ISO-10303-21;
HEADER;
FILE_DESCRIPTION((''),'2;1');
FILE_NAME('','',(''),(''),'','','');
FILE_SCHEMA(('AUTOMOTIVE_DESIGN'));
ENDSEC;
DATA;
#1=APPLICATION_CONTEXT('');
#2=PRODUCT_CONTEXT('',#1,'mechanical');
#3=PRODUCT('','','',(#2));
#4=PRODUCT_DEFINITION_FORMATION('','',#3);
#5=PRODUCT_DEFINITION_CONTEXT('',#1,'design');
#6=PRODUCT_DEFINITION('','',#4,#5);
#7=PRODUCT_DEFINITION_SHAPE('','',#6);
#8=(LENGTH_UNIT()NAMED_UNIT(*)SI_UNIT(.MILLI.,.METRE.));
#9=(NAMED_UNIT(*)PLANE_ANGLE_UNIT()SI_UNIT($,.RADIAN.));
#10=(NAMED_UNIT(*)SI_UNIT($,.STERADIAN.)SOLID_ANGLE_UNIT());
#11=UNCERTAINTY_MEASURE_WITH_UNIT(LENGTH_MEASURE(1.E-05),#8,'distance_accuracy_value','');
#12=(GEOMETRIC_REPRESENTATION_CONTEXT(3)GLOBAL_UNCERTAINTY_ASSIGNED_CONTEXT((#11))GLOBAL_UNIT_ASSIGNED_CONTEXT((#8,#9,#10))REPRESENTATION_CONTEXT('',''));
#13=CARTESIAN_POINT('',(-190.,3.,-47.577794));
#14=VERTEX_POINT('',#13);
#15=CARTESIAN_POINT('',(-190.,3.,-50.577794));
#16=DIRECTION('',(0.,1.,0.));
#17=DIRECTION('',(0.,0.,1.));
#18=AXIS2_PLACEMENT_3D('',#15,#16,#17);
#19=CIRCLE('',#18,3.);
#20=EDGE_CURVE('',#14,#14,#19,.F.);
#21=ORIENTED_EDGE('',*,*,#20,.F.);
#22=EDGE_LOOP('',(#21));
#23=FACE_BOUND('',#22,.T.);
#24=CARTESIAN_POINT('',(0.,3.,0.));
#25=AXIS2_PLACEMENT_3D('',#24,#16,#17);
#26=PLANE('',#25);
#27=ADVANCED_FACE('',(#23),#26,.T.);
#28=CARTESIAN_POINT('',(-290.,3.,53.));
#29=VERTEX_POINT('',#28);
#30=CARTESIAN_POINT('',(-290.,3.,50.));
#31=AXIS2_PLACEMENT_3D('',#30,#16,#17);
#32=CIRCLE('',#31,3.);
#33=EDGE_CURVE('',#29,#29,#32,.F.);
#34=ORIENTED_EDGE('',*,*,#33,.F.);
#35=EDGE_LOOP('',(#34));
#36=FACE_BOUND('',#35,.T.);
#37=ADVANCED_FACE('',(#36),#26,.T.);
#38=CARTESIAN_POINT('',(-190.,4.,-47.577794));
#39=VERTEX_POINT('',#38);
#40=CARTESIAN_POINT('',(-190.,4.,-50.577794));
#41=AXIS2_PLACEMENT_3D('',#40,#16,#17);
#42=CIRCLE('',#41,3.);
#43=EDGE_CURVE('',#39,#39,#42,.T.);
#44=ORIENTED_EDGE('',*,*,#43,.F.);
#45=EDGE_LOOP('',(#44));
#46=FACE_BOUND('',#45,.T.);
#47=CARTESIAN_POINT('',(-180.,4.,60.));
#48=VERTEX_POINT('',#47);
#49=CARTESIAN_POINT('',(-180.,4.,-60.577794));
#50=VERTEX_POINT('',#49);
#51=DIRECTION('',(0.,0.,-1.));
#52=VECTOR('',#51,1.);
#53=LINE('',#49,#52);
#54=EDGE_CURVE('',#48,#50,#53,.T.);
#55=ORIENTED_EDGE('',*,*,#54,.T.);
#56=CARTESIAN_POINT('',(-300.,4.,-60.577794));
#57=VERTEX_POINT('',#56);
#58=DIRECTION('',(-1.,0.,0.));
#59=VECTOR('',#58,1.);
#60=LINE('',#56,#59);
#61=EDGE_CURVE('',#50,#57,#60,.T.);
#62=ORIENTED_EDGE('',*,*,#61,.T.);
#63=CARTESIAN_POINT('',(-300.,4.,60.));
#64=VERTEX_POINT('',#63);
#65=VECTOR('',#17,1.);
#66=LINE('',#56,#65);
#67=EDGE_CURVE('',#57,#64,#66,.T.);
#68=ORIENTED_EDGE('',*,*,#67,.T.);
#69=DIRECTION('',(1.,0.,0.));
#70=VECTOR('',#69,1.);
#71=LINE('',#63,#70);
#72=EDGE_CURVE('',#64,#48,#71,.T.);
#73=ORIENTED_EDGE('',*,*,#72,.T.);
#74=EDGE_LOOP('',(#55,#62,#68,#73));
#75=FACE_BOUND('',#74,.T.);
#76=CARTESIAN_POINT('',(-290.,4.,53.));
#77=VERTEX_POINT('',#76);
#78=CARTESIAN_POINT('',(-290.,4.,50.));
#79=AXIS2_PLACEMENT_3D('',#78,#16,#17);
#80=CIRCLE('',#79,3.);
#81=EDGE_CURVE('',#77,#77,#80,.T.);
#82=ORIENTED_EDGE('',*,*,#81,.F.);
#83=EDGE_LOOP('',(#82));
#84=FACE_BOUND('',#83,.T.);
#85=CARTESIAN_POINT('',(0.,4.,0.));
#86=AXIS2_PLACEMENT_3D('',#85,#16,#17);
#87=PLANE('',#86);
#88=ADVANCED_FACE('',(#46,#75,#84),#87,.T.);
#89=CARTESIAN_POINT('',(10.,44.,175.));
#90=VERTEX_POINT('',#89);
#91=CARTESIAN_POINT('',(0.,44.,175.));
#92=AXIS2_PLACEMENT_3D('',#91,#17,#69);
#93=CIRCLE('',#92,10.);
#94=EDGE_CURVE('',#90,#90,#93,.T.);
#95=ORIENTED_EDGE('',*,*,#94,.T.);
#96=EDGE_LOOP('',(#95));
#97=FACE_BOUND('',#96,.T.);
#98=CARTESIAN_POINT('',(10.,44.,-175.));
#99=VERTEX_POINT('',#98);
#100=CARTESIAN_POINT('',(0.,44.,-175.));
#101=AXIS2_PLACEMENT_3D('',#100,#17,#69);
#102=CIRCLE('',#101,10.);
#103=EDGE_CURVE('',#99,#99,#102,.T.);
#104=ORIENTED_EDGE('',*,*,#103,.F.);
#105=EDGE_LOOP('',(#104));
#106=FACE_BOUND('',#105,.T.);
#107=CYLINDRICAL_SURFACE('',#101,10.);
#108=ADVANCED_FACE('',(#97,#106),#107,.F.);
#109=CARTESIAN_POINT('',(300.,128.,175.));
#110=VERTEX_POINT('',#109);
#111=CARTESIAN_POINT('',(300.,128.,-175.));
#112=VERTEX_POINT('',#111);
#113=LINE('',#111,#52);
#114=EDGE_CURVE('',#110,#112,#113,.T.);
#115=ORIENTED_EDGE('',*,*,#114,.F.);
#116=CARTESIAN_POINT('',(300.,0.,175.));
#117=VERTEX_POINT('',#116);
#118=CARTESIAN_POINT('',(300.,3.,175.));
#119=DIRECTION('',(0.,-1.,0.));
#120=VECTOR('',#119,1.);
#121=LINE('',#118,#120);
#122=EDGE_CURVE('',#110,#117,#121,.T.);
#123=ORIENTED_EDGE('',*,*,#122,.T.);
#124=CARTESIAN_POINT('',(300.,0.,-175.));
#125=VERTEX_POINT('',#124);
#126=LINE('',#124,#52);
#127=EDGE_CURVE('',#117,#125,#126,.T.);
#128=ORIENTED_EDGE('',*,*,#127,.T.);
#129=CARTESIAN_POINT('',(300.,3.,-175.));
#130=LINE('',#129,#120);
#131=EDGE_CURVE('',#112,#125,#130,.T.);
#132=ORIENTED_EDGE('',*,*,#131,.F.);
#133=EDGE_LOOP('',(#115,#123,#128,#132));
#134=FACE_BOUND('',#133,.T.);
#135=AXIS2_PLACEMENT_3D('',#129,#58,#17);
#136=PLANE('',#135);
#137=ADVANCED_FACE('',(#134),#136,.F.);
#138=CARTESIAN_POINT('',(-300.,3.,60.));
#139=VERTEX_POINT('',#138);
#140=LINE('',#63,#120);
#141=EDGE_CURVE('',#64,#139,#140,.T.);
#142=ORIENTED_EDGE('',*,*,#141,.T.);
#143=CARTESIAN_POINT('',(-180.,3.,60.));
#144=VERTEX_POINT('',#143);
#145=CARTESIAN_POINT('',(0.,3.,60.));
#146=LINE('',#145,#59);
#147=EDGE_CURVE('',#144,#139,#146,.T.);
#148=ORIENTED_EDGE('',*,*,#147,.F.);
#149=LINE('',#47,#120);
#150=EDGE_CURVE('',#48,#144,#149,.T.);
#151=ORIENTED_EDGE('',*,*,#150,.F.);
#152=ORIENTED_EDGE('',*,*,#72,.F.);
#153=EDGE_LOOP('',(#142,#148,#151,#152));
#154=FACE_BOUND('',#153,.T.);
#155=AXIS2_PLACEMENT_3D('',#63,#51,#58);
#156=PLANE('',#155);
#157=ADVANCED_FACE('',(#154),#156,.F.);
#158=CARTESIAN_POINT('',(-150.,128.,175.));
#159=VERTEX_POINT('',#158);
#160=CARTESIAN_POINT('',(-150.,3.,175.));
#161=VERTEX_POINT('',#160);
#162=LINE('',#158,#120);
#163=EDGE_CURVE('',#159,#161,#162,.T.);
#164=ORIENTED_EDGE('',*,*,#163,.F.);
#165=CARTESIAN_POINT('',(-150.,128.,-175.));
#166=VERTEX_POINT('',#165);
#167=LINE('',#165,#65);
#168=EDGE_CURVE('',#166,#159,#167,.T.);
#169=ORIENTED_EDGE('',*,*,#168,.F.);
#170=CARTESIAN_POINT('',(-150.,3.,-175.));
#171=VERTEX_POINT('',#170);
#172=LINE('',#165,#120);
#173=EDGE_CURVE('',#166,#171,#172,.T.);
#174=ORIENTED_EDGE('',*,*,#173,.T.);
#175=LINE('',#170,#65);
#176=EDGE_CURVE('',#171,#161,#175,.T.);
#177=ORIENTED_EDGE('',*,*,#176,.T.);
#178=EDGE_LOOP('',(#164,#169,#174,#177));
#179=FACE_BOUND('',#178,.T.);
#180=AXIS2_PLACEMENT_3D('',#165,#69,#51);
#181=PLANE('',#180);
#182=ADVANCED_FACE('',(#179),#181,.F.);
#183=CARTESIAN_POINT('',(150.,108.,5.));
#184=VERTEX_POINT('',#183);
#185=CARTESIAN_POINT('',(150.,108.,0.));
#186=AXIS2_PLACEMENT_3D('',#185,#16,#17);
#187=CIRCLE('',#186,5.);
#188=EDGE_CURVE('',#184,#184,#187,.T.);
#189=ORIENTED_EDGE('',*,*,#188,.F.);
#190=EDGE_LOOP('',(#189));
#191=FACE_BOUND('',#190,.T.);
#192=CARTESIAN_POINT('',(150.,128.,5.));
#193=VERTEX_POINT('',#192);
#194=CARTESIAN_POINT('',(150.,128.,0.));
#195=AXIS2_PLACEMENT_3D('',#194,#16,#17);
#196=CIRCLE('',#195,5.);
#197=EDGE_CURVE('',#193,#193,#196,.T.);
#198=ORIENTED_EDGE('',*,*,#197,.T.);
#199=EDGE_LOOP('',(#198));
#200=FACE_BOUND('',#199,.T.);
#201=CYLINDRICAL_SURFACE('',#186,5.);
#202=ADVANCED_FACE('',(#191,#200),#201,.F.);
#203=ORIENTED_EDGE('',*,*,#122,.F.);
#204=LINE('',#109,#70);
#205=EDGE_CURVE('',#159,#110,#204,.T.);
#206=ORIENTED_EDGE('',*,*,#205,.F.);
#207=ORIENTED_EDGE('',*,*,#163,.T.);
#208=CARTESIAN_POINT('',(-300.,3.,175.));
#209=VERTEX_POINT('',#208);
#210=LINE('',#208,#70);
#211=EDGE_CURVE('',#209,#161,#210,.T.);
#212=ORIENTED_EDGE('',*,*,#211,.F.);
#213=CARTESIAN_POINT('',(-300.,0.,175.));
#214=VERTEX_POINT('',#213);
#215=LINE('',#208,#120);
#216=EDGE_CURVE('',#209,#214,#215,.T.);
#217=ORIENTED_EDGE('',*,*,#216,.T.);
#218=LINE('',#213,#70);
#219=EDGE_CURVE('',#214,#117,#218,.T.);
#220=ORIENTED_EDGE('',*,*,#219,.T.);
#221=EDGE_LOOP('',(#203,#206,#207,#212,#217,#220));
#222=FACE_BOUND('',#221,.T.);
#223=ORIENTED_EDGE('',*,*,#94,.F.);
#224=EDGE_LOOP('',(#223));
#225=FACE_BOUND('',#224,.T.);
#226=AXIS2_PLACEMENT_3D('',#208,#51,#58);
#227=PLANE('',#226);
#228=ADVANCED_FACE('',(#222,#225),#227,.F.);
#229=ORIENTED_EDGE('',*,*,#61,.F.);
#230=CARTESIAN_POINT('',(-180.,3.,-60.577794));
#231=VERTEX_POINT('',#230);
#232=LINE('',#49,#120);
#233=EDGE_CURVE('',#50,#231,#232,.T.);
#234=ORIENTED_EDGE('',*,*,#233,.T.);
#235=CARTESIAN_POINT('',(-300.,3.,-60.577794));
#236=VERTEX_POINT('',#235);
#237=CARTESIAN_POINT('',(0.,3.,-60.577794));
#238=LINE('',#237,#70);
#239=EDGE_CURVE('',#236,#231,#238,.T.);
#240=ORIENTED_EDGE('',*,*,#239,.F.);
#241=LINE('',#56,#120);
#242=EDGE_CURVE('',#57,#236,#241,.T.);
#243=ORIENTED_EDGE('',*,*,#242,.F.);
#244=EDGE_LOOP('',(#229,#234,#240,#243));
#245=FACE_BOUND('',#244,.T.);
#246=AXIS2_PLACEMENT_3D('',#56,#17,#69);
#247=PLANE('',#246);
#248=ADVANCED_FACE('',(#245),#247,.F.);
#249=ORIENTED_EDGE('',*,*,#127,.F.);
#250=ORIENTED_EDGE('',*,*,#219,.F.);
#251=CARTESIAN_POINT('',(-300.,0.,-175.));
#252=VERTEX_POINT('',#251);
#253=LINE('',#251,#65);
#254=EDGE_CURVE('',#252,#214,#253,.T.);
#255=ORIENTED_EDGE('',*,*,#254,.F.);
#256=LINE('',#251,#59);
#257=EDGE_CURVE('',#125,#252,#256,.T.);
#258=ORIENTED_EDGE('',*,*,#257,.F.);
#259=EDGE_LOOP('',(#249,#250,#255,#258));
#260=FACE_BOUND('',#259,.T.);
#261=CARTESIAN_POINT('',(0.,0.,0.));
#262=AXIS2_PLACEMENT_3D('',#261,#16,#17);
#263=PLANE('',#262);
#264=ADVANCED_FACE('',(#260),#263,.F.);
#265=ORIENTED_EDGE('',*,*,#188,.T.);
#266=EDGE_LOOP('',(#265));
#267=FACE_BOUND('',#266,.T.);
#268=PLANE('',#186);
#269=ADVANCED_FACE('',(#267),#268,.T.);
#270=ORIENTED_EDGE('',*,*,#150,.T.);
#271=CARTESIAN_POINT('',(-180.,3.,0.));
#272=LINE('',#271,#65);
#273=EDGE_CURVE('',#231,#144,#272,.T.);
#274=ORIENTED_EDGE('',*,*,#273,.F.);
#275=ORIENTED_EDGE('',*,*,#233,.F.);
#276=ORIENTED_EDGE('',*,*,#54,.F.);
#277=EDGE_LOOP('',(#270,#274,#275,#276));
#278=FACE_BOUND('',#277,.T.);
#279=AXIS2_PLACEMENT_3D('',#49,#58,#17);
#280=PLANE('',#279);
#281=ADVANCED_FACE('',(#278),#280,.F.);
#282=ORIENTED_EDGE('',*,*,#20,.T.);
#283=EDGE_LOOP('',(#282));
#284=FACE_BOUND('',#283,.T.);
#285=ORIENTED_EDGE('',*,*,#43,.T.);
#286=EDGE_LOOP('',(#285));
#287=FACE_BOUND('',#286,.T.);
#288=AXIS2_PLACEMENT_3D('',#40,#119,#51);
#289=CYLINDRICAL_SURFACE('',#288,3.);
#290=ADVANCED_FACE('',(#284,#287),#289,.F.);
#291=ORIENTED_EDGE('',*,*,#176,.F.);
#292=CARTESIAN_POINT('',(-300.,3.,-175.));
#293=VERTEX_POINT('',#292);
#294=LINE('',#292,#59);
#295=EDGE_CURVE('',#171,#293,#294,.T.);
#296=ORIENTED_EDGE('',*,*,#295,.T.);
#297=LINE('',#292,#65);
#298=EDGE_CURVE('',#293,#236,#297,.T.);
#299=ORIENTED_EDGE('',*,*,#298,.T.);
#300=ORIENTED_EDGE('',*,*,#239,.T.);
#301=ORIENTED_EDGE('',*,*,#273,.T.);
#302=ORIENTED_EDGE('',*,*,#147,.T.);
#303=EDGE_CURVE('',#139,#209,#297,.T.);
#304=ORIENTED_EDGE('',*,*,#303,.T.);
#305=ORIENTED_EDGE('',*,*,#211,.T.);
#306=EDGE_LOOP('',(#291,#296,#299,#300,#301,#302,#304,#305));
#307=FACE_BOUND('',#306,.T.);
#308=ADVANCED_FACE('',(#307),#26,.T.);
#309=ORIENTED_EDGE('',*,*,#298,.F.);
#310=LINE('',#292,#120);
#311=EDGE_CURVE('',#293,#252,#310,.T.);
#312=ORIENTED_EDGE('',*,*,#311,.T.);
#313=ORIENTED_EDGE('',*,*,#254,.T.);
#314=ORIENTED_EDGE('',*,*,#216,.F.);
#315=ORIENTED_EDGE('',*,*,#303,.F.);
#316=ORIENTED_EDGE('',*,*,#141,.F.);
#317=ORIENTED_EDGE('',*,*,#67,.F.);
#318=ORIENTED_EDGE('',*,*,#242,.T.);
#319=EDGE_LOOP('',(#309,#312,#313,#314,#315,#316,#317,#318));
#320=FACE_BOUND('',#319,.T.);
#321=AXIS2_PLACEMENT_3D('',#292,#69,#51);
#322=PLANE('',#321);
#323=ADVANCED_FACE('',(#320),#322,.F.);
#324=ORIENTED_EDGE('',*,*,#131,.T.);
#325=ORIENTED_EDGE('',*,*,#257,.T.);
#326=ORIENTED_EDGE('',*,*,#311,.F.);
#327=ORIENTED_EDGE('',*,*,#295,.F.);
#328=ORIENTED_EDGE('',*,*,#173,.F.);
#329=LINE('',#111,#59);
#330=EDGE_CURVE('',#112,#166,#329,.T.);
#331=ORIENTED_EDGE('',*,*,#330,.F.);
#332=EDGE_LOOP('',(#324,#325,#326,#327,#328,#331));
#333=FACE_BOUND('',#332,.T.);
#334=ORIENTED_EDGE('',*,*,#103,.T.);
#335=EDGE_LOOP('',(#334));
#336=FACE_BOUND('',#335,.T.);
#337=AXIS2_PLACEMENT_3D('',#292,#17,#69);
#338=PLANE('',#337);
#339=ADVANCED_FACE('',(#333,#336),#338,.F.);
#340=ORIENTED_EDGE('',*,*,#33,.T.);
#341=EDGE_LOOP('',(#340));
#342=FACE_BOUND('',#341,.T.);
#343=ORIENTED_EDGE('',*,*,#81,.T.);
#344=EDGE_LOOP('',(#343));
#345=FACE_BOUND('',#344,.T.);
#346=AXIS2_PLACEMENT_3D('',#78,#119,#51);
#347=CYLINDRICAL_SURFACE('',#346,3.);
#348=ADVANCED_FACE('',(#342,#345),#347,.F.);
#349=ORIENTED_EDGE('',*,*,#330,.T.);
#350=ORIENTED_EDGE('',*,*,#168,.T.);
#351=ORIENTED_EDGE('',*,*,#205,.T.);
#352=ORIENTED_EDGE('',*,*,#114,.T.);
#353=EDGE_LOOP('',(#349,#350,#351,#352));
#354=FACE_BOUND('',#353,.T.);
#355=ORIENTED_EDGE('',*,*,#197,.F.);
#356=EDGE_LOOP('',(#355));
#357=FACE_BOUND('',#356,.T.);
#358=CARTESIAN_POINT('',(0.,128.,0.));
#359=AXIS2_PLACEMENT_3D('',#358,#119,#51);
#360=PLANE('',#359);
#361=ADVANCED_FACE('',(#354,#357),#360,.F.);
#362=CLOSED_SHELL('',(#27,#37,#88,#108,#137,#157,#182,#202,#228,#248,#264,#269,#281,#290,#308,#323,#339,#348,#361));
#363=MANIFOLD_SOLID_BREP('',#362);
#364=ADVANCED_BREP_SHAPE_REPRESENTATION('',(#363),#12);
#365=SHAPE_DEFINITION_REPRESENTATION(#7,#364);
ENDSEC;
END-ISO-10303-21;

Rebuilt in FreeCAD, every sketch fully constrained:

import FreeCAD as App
import Part
import Sketcher
from FreeCAD import Vector
Q = App.Units.Quantity

doc = App.newDocument("Part")
params = doc.addObject("Spreadsheet::Sheet", "Params")
for row, (alias, value) in enumerate([
    ("sketch1_width", "600 mm"),
    ("sketch1_height", "350 mm"),
    ("pad1_length", "3 mm"),
    ("sketch2_width", "450 mm"),
    ("sketch2_height", "350 mm"),
    ("pad2_length", "125 mm"),
    ("sketch3_diameter", "20 mm"),
    ("pocket1_length", "350 mm"),
    ("sketch4_diameter", "10 mm"),
    ("pocket2_length", "20 mm"),
    ("sketch5_diameter", "6 mm"),
    ("sketch5_width", "120 mm"),
    ("pad3_length", "2 mm"),
], start=1):
    params.set(f"A{row}", alias)
    params.set(f"B{row}", "=" + value)
    params.setAlias(f"B{row}", alias)

body = doc.addObject("PartDesign::Body", "Body")

# Sketch on XZ plane
sketch1 = doc.addObject("Sketcher::SketchObject", "Sketch")
body.addObject(sketch1)
sketch1.AttachmentSupport = (doc.XZ_Plane, [""])
sketch1.MapMode = "FlatFace"
sketch1.addGeometry([
    Part.LineSegment(Vector(-300, -175, 0), Vector(-300, 175, 0)),
    Part.LineSegment(Vector(-300, 175, 0), Vector(300, 175, 0)),
    Part.LineSegment(Vector(300, 175, 0), Vector(300, -175, 0)),
    Part.LineSegment(Vector(300, -175, 0), Vector(-300, -175, 0)),
], False)
sketch1.addConstraint([
    Sketcher.Constraint("Coincident", 0, 2, 1, 1),
    Sketcher.Constraint("Coincident", 1, 2, 2, 1),
    Sketcher.Constraint("Coincident", 2, 2, 3, 1),
    Sketcher.Constraint("Coincident", 3, 2, 0, 1),
    Sketcher.Constraint("Vertical", 0),
    Sketcher.Constraint("Horizontal", 1),
    Sketcher.Constraint("Vertical", 2),
    Sketcher.Constraint("Horizontal", 3),
    Sketcher.Constraint("Symmetric", 0, 2, 2, 2, -1, 1),
    Sketcher.Constraint("DistanceX", 1, 1, 1, 2, Q("600 mm")),
    Sketcher.Constraint("DistanceY", 0, 1, 0, 2, Q("350 mm")),
])
sketch1.setExpression("Constraints[9]", "Params.sketch1_width")
sketch1.setExpression("Constraints[10]", "Params.sketch1_height")
pad1 = doc.addObject("PartDesign::Pad", "Pad")
body.addObject(pad1)
pad1.Profile = sketch1
pad1.setExpression("Length", "Params.pad1_length")
pad1.Reversed = True

# Sketch on XZ plane
sketch2 = doc.addObject("Sketcher::SketchObject", "Sketch001")
body.addObject(sketch2)
sketch2.AttachmentSupport = (doc.XZ_Plane, [""])
sketch2.MapMode = "FlatFace"
sketch2.AttachmentOffset = App.Placement(Vector(0, 0, -3), App.Rotation())
sketch2.addGeometry([
    Part.LineSegment(Vector(-150, -175, 0), Vector(-150, 175, 0)),
    Part.LineSegment(Vector(-150, 175, 0), Vector(300, 175, 0)),
    Part.LineSegment(Vector(300, 175, 0), Vector(300, -175, 0)),
    Part.LineSegment(Vector(300, -175, 0), Vector(-150, -175, 0)),
], False)
sketch2.addConstraint([
    Sketcher.Constraint("Coincident", 0, 2, 1, 1),
    Sketcher.Constraint("Coincident", 1, 2, 2, 1),
    Sketcher.Constraint("Coincident", 2, 2, 3, 1),
    Sketcher.Constraint("Coincident", 3, 2, 0, 1),
    Sketcher.Constraint("Vertical", 0),
    Sketcher.Constraint("Horizontal", 1),
    Sketcher.Constraint("Vertical", 2),
    Sketcher.Constraint("Horizontal", 3),
    Sketcher.Constraint("DistanceX", 1, 1, 1, 2, Q("450 mm")),
    Sketcher.Constraint("DistanceY", 0, 1, 0, 2, Q("350 mm")),
    Sketcher.Constraint("DistanceX", 0, 2, -1, 1, Q("150 mm")),
    Sketcher.Constraint("DistanceY", -1, 1, 0, 2, Q("175 mm")),
])
sketch2.setExpression("Constraints[8]", "Params.sketch2_width")
sketch2.setExpression("Constraints[9]", "Params.sketch2_height")
pad2 = doc.addObject("PartDesign::Pad", "Pad001")
body.addObject(pad2)
pad2.Profile = sketch2
pad2.setExpression("Length", "Params.pad2_length")
pad2.Reversed = True

# Sketch on XY plane
sketch3 = doc.addObject("Sketcher::SketchObject", "Sketch002")
body.addObject(sketch3)
sketch3.AttachmentSupport = (doc.XY_Plane, [""])
sketch3.MapMode = "FlatFace"
sketch3.AttachmentOffset = App.Placement(Vector(0, 0, 175), App.Rotation())
sketch3.addGeometry(Part.Circle(Vector(0, 44, 0), Vector(0, 0, 1), 10), False)
sketch3.addConstraint([
    Sketcher.Constraint("PointOnObject", 0, 3, -2),
    Sketcher.Constraint("Diameter", 0, Q("20 mm")),
    Sketcher.Constraint("DistanceY", -1, 1, 0, 3, Q("44 mm")),
])
sketch3.setExpression("Constraints[1]", "Params.sketch3_diameter")
pocket1 = doc.addObject("PartDesign::Pocket", "Pocket")
body.addObject(pocket1)
pocket1.Profile = sketch3
pocket1.setExpression("Length", "Params.pocket1_length")

# Sketch on XZ plane
sketch4 = doc.addObject("Sketcher::SketchObject", "Sketch003")
body.addObject(sketch4)
sketch4.AttachmentSupport = (doc.XZ_Plane, [""])
sketch4.MapMode = "FlatFace"
sketch4.AttachmentOffset = App.Placement(Vector(0, 0, -128), App.Rotation())
sketch4.addGeometry(Part.Circle(Vector(150, 0, 0), Vector(0, 0, 1), 5), False)
sketch4.addConstraint([
    Sketcher.Constraint("PointOnObject", 0, 3, -1),
    Sketcher.Constraint("Diameter", 0, Q("10 mm")),
    Sketcher.Constraint("DistanceX", -1, 1, 0, 3, Q("150 mm")),
])
sketch4.setExpression("Constraints[1]", "Params.sketch4_diameter")
pocket2 = doc.addObject("PartDesign::Pocket", "Pocket001")
body.addObject(pocket2)
pocket2.Profile = sketch4
pocket2.setExpression("Length", "Params.pocket2_length")
pocket2.Reversed = True

# Sketch on XZ plane
sketch5 = doc.addObject("Sketcher::SketchObject", "Sketch004")
body.addObject(sketch5)
sketch5.AttachmentSupport = (doc.XZ_Plane, [""])
sketch5.MapMode = "FlatFace"
sketch5.AttachmentOffset = App.Placement(Vector(0, 0, -3), App.Rotation())
sketch5.addGeometry([
    Part.LineSegment(Vector(-300, -60.577794, 0), Vector(-300, 60, 0)),  # 0
    Part.LineSegment(Vector(-300, 60, 0), Vector(-180, 60, 0)),  # 1
    Part.LineSegment(Vector(-180, 60, 0), Vector(-180, -60.577794, 0)),  # 2
    Part.LineSegment(Vector(-180, -60.577794, 0), Vector(-300, -60.577794, 0)),  # 3
    Part.Circle(Vector(-290, 50, 0), Vector(0, 0, 1), 3),  # 4
    Part.Circle(Vector(-190, -50.577794, 0), Vector(0, 0, 1), 3),  # 5
], False)
sketch5.addConstraint([
    Sketcher.Constraint("Coincident", 0, 2, 1, 1),
    Sketcher.Constraint("Coincident", 1, 2, 2, 1),
    Sketcher.Constraint("Coincident", 2, 2, 3, 1),
    Sketcher.Constraint("Coincident", 3, 2, 0, 1),
    Sketcher.Constraint("Vertical", 0),
    Sketcher.Constraint("Horizontal", 1),
    Sketcher.Constraint("Vertical", 2),
    Sketcher.Constraint("Horizontal", 3),
    Sketcher.Constraint("Equal", 4, 5),
    Sketcher.Constraint("Diameter", 4, Q("6 mm")),
    Sketcher.Constraint("DistanceX", 1, 1, 1, 2, Q("120 mm")),
    Sketcher.Constraint("DistanceX", 4, 3, -1, 1, Q("290 mm")),
    Sketcher.Constraint("DistanceY", -1, 1, 4, 3, Q("50 mm")),
    Sketcher.Constraint("DistanceX", 5, 3, -1, 1, Q("190 mm")),
    Sketcher.Constraint("DistanceX", 0, 2, -1, 1, Q("300 mm")),
    Sketcher.Constraint("DistanceY", -1, 1, 0, 2, Q("60 mm")),
    Sketcher.Constraint("DistanceY", 2, 2, 5, 3, Q("10 mm")),
    Sketcher.Constraint("DistanceY", 0, 1, 0, 2, Q("120.577794 mm")),
])
sketch5.setExpression("Constraints[9]", "Params.sketch5_diameter")
sketch5.setExpression("Constraints[10]", "Params.sketch5_width")
pad3 = doc.addObject("PartDesign::Pad", "Pad002")
body.addObject(pad3)
pad3.Profile = sketch5
pad3.setExpression("Length", "Params.pad3_length")
pad3.Midplane = True

doc.recompute()
